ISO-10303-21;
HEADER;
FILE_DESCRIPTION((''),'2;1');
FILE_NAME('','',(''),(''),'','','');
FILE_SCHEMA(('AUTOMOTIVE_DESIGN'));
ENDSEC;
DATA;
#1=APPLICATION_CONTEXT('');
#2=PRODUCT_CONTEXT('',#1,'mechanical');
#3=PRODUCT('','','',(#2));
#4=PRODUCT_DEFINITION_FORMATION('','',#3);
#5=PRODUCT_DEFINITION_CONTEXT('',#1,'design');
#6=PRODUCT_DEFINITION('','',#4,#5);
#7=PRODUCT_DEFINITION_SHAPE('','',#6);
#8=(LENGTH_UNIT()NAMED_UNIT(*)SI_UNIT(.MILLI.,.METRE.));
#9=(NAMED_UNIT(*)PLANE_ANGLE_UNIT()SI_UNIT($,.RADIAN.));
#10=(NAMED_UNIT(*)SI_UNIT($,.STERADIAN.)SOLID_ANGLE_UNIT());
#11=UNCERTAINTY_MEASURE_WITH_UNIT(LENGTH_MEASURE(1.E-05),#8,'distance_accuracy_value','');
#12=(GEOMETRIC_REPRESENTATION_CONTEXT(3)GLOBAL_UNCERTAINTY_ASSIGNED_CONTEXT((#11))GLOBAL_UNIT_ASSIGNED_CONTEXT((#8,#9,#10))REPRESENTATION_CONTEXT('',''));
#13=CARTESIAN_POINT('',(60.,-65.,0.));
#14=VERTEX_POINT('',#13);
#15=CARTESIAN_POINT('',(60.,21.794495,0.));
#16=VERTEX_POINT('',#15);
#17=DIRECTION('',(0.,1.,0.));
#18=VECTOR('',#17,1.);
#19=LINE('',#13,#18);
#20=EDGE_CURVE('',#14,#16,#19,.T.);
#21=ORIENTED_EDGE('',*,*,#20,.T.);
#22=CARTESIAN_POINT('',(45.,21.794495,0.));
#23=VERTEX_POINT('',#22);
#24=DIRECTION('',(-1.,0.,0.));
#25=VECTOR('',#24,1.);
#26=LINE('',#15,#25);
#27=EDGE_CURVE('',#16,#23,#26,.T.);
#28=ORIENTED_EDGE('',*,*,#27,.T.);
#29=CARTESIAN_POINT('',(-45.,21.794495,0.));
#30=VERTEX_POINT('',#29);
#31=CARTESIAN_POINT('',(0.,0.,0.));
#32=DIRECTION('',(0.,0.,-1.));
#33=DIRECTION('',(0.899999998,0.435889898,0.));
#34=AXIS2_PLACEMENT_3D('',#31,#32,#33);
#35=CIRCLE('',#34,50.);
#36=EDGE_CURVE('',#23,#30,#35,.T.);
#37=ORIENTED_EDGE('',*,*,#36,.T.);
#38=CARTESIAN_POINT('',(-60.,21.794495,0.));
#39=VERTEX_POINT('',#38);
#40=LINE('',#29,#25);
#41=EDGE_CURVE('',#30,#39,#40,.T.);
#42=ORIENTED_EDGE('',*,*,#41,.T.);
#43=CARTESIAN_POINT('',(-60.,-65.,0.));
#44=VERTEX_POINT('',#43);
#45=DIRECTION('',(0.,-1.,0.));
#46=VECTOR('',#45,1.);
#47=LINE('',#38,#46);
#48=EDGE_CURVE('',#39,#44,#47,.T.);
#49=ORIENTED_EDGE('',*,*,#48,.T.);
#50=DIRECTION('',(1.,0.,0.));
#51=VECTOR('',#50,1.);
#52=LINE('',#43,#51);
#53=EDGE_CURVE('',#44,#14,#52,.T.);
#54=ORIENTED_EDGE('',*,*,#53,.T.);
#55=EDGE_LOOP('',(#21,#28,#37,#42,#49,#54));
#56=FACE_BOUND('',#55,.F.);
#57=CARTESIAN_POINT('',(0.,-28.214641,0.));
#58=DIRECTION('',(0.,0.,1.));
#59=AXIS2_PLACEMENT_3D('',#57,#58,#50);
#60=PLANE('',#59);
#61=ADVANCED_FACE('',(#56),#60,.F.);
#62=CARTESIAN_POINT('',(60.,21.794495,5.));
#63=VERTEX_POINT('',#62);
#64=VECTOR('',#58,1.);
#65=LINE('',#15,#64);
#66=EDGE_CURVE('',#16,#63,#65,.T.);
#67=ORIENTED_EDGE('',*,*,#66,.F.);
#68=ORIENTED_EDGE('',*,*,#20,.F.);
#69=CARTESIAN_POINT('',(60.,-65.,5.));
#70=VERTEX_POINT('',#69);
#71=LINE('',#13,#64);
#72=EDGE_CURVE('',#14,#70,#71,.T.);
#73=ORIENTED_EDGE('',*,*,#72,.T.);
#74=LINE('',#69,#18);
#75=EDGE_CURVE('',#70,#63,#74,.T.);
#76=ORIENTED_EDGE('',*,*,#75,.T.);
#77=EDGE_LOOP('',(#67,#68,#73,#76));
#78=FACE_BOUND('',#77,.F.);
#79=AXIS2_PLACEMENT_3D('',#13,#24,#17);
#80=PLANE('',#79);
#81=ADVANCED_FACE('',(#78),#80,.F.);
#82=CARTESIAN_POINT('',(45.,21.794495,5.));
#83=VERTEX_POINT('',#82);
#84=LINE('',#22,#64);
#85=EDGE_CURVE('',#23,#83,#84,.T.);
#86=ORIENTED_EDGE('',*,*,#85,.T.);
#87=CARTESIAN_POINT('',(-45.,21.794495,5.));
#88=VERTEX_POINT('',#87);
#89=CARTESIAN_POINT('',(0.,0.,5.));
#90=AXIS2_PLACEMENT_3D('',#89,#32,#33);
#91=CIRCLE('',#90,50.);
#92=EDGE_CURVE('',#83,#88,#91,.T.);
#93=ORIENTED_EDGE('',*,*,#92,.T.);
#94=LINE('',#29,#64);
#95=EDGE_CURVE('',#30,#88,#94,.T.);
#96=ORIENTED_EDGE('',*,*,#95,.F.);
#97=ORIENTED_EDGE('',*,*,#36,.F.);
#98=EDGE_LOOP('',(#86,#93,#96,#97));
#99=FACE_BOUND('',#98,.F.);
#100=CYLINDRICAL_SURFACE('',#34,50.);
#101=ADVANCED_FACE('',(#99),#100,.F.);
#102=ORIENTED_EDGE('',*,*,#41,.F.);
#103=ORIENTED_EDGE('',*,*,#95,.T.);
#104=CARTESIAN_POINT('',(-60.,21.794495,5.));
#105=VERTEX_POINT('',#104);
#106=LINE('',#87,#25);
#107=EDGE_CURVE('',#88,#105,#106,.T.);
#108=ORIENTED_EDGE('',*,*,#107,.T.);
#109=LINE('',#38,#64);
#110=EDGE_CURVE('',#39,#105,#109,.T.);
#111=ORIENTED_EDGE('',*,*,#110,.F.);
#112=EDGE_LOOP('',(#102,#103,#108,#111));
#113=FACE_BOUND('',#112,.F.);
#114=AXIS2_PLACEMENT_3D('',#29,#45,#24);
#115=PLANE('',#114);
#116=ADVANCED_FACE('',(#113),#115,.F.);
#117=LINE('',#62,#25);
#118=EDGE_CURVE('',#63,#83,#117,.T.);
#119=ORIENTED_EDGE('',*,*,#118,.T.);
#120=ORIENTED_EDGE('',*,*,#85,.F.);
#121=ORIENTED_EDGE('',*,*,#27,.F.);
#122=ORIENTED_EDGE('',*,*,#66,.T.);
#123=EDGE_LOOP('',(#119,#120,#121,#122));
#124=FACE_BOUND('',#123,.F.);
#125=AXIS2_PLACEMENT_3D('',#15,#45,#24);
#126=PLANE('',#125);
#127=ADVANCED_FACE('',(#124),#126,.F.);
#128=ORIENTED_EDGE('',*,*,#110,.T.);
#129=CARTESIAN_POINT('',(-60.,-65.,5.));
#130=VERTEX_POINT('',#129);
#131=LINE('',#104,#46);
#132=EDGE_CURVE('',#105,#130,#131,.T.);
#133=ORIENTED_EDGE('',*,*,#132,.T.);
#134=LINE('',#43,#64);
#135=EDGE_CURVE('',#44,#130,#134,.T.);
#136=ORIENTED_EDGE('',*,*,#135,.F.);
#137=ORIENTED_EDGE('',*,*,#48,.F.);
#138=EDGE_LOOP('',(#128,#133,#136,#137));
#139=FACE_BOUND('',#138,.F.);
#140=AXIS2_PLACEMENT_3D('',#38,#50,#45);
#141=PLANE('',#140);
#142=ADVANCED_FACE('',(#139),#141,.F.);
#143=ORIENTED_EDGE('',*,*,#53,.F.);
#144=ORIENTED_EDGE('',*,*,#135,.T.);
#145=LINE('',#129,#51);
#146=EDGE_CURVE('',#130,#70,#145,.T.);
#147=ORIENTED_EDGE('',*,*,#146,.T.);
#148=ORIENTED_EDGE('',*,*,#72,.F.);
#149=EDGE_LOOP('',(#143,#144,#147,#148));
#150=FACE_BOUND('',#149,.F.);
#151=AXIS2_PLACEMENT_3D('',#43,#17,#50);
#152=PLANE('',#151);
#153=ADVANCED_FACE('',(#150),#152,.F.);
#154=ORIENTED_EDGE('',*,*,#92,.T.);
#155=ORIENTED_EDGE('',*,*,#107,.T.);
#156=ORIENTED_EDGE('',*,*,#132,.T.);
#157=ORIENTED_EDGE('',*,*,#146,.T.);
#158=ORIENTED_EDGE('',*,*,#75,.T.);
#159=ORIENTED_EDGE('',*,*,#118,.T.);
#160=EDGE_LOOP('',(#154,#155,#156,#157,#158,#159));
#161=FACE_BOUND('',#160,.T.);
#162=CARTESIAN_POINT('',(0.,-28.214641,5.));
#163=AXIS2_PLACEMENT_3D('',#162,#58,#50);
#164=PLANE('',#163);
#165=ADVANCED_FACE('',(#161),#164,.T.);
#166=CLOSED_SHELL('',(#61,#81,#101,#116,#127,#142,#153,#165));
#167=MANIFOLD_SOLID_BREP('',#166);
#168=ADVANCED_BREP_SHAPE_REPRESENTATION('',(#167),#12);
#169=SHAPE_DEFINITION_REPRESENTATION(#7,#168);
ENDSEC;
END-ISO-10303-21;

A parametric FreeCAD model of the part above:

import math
import FreeCAD as App
import Part
import Sketcher

V = App.Vector
Q = App.Units.Quantity

doc = App.newDocument("Part")
body = doc.addObject("PartDesign::Body", "Body")

# Sketch on XY plane
sketch1 = body.newObject("Sketcher::SketchObject", "Sketch")
sketch1.AttachmentSupport = (doc.getObject("XY_Plane"), [""])
sketch1.MapMode = "FlatFace"
sketch1.addGeometry([
    Part.ArcOfCircle(Part.Circle(V(0, 0, 0), V(0, 0, 1), 50), math.radians(154), math.radians(386)),  # 0
    Part.LineSegment(V(-45, 22, 0), V(-60, 22, 0)),  # 1
    Part.LineSegment(V(-60, 22, 0), V(-60, -65, 0)),  # 2
    Part.LineSegment(V(-60, -65, 0), V(60, -65, 0)),  # 3
    Part.LineSegment(V(60, -65, 0), V(60, 22, 0)),  # 4
    Part.LineSegment(V(60, 22, 0), V(45, 22, 0)),  # 5
], False)
sketch1.addConstraint([
    Sketcher.Constraint("Coincident", 0, 1, 1, 1),
    Sketcher.Constraint("Coincident", 1, 2, 2, 1),
    Sketcher.Constraint("Coincident", 2, 2, 3, 1),
    Sketcher.Constraint("Coincident", 3, 2, 4, 1),
    Sketcher.Constraint("Coincident", 4, 2, 5, 1),
    Sketcher.Constraint("Coincident", 5, 2, 0, 2),
    Sketcher.Constraint("Horizontal", 1),
    Sketcher.Constraint("Vertical", 2),
    Sketcher.Constraint("Horizontal", 3),
    Sketcher.Constraint("Vertical", 4),
    Sketcher.Constraint("Horizontal", 5),
    Sketcher.Constraint("Coincident", 0, 3, -1, 1),
    Sketcher.Constraint("Symmetric", 1, 2, 4, 2, -2),
    Sketcher.Constraint("Radius", 0, Q("50 mm")),
    Sketcher.Constraint("DistanceX", 1, 2, 1, 1, Q("15 mm")),
    Sketcher.Constraint("DistanceX", 3, 1, 3, 2, Q("120 mm")),
    Sketcher.Constraint("DistanceY", 2, 2, -1, 1, Q("65 mm")),
])
pad1 = body.newObject("PartDesign::Pad", "Pad")
pad1.Profile = sketch1
pad1.Length = 5

doc.recompute()
